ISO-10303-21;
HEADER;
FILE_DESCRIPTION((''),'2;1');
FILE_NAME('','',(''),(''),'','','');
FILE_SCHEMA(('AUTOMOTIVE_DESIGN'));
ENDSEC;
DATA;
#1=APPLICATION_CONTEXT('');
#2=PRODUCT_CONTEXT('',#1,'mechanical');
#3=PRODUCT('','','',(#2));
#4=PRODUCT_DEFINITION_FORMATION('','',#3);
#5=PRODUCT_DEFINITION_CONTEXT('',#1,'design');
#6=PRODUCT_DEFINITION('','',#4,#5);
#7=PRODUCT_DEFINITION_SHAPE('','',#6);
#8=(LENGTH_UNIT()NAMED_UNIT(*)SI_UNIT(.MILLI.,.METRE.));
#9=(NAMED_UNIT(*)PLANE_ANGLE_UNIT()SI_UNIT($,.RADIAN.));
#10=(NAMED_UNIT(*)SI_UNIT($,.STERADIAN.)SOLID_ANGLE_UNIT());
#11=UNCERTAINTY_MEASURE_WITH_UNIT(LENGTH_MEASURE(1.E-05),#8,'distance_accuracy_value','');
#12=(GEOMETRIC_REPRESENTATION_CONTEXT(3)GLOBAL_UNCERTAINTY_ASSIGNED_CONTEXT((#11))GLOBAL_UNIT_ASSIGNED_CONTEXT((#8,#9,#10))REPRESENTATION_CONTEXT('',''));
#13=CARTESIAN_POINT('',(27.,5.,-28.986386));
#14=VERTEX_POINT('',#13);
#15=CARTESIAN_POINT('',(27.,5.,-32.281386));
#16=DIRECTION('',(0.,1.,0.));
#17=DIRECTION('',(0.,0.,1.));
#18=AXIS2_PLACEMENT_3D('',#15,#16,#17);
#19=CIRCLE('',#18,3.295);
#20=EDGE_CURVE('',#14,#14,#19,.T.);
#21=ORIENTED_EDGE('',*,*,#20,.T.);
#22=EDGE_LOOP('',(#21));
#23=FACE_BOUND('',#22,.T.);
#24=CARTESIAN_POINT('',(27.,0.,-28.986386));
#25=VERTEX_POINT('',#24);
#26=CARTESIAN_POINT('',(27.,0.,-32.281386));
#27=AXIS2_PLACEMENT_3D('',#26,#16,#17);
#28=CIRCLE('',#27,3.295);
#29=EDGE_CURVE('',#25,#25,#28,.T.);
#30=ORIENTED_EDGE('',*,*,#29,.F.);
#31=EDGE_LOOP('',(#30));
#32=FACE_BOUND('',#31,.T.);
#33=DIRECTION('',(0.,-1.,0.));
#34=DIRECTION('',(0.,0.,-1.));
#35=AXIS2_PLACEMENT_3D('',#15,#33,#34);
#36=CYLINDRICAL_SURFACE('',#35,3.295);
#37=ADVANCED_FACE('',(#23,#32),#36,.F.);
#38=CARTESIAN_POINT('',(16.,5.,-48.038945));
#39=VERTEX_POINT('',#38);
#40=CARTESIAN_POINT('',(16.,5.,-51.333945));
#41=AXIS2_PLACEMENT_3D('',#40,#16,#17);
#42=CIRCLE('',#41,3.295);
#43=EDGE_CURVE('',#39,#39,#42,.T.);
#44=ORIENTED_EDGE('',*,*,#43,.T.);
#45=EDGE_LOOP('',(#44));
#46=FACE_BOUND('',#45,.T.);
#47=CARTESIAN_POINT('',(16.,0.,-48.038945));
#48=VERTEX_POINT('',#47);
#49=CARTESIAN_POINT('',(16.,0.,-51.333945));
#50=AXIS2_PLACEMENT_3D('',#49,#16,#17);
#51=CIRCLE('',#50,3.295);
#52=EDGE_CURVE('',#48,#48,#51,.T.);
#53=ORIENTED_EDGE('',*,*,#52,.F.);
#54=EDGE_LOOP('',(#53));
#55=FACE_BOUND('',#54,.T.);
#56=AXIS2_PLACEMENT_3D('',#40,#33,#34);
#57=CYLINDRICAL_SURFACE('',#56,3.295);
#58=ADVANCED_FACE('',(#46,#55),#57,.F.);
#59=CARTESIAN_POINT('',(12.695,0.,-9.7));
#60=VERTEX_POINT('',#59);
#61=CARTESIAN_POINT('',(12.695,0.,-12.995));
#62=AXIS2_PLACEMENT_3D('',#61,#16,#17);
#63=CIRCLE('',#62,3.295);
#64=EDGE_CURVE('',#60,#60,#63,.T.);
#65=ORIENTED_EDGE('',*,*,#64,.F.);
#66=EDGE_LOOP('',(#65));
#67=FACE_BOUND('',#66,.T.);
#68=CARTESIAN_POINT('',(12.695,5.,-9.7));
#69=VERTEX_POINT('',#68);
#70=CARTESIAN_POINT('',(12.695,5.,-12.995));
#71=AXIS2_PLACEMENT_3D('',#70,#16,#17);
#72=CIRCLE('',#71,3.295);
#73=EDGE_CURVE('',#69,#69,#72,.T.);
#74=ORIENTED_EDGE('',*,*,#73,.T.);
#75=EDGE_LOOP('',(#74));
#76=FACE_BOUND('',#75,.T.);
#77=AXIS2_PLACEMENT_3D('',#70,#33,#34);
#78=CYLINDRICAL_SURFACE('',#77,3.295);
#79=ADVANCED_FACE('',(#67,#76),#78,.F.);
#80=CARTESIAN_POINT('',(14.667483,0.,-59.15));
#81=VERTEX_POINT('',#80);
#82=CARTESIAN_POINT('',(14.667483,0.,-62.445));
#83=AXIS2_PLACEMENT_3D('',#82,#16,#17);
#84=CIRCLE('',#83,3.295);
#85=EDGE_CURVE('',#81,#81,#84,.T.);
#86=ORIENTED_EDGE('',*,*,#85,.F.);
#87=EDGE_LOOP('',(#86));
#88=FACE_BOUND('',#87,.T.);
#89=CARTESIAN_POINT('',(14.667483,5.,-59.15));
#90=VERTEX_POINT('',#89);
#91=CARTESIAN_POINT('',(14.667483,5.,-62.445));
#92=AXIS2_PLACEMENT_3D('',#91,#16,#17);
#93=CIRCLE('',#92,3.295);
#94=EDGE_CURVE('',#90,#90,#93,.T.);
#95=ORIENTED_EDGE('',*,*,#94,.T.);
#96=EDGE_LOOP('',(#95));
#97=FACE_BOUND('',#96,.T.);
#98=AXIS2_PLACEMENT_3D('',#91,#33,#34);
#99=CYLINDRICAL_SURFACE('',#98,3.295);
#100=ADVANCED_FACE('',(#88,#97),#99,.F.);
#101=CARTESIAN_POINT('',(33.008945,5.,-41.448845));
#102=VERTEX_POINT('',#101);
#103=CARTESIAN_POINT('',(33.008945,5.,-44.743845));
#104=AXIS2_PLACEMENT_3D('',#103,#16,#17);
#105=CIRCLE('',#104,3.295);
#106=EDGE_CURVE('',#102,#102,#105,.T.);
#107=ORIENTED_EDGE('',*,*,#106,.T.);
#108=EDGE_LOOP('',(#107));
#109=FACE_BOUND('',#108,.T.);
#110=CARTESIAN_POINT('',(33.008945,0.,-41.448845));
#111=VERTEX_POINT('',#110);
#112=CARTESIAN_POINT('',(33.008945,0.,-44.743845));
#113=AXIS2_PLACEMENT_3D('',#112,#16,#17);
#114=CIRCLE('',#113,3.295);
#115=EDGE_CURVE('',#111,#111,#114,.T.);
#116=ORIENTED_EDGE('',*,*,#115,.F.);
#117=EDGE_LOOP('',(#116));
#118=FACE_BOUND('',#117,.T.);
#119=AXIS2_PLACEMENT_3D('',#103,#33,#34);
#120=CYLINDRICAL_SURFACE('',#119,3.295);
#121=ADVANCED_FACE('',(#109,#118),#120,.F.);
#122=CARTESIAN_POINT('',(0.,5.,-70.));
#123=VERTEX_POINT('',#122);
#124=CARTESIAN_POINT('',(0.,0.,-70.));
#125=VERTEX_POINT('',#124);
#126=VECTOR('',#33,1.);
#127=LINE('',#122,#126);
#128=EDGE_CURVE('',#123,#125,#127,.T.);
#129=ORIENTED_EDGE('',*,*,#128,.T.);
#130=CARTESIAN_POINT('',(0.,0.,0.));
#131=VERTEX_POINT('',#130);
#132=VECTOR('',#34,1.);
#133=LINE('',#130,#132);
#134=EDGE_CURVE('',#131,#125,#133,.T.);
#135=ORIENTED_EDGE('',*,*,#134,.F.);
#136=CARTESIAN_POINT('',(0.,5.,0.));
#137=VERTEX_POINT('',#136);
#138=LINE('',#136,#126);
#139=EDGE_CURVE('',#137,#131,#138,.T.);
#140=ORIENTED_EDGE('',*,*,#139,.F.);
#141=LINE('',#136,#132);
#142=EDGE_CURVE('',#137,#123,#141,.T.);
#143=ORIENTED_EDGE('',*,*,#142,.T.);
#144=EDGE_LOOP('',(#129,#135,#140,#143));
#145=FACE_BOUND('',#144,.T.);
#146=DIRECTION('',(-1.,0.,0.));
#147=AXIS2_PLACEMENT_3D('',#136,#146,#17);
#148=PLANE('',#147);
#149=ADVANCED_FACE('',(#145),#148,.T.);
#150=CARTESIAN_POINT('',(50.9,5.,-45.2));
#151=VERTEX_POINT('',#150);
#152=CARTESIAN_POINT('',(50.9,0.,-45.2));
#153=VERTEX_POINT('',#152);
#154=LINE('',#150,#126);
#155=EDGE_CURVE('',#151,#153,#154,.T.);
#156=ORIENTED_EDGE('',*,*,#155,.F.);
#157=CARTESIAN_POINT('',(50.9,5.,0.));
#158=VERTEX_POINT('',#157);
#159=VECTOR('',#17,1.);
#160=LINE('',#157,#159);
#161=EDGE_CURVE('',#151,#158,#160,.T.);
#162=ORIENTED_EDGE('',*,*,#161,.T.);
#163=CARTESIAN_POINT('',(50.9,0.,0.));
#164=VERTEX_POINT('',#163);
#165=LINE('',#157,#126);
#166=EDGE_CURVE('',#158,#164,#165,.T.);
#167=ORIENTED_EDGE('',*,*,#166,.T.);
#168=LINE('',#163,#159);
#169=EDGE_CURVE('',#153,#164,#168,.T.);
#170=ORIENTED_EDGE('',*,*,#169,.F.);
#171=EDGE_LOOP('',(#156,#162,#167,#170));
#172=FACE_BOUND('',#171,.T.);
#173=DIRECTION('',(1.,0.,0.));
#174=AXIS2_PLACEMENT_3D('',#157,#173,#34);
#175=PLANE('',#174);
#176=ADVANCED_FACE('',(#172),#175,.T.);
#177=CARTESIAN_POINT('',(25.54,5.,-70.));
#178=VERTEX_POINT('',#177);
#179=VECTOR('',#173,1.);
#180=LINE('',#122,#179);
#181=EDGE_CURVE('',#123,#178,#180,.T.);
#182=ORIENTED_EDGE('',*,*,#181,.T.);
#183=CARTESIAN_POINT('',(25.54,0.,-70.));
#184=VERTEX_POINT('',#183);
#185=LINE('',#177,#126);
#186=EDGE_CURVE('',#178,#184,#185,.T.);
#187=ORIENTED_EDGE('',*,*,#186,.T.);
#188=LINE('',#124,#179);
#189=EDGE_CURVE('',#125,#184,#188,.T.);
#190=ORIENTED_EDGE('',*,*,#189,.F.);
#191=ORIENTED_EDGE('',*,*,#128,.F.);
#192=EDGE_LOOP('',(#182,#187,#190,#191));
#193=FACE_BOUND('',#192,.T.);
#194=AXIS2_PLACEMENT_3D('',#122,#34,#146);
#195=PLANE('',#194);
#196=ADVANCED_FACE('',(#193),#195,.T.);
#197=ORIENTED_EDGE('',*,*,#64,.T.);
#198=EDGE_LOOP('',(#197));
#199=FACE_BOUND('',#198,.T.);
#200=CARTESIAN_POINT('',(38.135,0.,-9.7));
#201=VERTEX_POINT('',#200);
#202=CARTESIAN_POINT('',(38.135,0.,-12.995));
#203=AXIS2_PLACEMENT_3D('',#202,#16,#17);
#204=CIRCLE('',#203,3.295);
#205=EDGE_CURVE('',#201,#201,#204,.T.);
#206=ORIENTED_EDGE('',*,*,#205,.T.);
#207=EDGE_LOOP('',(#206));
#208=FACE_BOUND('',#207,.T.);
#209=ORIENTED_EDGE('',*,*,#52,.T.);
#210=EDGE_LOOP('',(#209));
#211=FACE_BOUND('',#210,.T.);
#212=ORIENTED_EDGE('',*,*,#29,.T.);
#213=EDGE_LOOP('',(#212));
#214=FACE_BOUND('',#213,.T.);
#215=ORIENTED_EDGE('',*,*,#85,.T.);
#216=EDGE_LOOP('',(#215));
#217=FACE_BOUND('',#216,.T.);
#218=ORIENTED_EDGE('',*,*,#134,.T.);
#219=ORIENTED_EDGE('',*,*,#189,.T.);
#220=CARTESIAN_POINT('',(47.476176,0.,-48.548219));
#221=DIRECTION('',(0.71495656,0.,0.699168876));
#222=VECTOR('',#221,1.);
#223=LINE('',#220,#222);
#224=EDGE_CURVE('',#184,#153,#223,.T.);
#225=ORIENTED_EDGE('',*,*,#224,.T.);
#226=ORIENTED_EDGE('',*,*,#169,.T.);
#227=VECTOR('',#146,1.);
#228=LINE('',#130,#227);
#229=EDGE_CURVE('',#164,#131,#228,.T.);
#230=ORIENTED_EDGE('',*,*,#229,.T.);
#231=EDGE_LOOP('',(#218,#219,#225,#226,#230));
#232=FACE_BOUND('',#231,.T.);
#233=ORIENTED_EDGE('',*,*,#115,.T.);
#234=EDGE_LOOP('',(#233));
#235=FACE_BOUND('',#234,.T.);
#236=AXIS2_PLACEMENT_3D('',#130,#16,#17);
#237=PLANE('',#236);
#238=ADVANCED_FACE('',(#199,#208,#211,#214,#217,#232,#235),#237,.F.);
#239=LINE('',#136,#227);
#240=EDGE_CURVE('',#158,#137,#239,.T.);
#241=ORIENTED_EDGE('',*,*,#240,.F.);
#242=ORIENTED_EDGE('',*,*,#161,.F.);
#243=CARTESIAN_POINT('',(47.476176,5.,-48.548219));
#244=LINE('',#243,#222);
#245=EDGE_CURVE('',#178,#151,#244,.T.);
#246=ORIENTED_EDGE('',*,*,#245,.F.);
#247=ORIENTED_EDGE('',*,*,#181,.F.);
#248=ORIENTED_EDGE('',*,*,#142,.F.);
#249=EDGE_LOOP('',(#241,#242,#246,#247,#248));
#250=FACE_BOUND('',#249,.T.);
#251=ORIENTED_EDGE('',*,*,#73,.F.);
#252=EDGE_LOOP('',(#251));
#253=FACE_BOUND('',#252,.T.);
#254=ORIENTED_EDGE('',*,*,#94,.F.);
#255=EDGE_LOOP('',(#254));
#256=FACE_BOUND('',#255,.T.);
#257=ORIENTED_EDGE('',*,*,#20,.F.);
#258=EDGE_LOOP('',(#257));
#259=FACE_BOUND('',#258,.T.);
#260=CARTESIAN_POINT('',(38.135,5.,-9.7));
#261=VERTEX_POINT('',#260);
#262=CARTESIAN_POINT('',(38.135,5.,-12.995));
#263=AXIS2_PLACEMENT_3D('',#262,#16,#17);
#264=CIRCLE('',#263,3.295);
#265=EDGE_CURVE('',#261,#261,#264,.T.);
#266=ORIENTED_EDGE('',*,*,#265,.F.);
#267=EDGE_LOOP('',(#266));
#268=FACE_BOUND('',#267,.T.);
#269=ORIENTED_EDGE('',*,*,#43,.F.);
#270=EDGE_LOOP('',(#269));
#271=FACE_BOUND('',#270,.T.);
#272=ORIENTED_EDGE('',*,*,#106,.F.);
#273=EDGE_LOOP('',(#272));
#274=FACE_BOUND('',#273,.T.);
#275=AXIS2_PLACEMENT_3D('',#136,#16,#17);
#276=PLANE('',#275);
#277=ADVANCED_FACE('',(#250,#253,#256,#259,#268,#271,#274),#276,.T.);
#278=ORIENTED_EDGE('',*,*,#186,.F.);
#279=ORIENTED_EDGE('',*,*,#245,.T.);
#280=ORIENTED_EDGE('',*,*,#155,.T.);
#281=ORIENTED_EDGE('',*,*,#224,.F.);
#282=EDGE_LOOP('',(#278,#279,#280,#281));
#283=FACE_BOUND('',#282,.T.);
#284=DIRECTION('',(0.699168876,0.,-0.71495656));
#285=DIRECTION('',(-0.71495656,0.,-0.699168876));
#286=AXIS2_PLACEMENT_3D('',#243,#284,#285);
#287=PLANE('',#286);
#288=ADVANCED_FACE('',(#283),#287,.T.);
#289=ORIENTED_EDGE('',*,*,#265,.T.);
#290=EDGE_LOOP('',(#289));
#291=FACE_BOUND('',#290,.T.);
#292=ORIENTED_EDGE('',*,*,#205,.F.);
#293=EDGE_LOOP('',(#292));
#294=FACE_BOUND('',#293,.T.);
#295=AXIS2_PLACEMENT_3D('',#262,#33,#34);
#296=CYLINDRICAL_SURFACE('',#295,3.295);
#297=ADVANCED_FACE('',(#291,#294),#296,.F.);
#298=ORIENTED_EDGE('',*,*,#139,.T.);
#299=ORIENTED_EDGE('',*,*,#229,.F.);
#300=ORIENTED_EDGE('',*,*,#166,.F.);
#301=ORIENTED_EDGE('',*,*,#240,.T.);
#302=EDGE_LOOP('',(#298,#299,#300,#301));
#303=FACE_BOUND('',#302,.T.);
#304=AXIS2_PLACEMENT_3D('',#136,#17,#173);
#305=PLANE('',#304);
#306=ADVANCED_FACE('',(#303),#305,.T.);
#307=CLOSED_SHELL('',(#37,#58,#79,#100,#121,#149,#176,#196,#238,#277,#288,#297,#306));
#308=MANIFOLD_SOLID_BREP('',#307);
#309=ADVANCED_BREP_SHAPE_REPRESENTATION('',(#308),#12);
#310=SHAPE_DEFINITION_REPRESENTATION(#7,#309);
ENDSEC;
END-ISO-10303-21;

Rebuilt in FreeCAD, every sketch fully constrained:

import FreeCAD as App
import Part
import Sketcher
Q = App.Units.Quantity


def add_polygon(sketch, points):
    """Adds a closed chain of lines whose ends are joined by coincident constraints."""
    first, n = sketch.GeometryCount, len(points)
    for a, b in zip(points, points[1:] + points[:1]):
        sketch.addGeometry(Part.LineSegment(App.Vector(*a, 0), App.Vector(*b, 0)), False)
    for i in range(n):
        sketch.addConstraint(Sketcher.Constraint("Coincident", first + i, 2, first + (i + 1) % n, 1))

doc = App.newDocument("Part")
body = doc.addObject("PartDesign::Body", "Body")

# Sketch on XZ plane
sketch1 = body.newObject("Sketcher::SketchObject", "Sketch")
sketch1.AttachmentSupport = (doc.getObject("XZ_Plane"), [""])
sketch1.MapMode = "FlatFace"
add_polygon(sketch1, [(0, -70), (0, 0), (50.9, 0), (50.9, -45.2), (25.5, -70)])  # lines 0-4
sketch1.addGeometry(Part.Circle(App.Vector(38.1, -13, 0), App.Vector(0, 0, 1), 3.3), False)  # 5
sketch1.addGeometry(Part.Circle(App.Vector(27, -32.3, 0), App.Vector(0, 0, 1), 3.3), False)  # 6
sketch1.addGeometry(Part.Circle(App.Vector(12.7, -13, 0), App.Vector(0, 0, 1), 3.3), False)  # 7
sketch1.addGeometry(Part.Circle(App.Vector(33, -44.7, 0), App.Vector(0, 0, 1), 3.3), False)  # 8
sketch1.addGeometry(Part.Circle(App.Vector(16, -51.3, 0), App.Vector(0, 0, 1), 3.3), False)  # 9
sketch1.addGeometry(Part.Circle(App.Vector(14.7, -62.4, 0), App.Vector(0, 0, 1), 3.3), False)  # 10
sketch1.addConstraint([
    Sketcher.Constraint("Vertical", 0),
    Sketcher.Constraint("Horizontal", 1),
    Sketcher.Constraint("Vertical", 2),
    Sketcher.Constraint("Horizontal", 4),
    Sketcher.Constraint("Coincident", 0, 2, -1, 1),
    Sketcher.Constraint("Equal", 5, 6),
    Sketcher.Constraint("Equal", 6, 7),
    Sketcher.Constraint("Equal", 7, 8),
    Sketcher.Constraint("Equal", 8, 9),
    Sketcher.Constraint("Equal", 9, 10),
    Sketcher.Constraint("Horizontal", 5, 3, 7, 3),
    Sketcher.Constraint("Diameter", 5, Q("6.59 mm")),
    Sketcher.Constraint("DistanceY", 0, 1, 0, 2, Q("70 mm")),
    Sketcher.Constraint("DistanceX", 1, 1, 1, 2, Q("50.9 mm")),
    Sketcher.Constraint("DistanceY", 2, 2, 2, 1, Q("45.2 mm")),
    Sketcher.Constraint("DistanceX", -1, 1, 6, 3, Q("27 mm")),
    Sketcher.Constraint("DistanceX", -1, 1, 9, 3, Q("16 mm")),
    Sketcher.Constraint("DistanceX", 4, 2, 4, 1, Q("25.54 mm")),
    Sketcher.Constraint("DistanceX", 7, 3, 5, 3, Q("25.44 mm")),
    Sketcher.Constraint("DistanceY", 10, 3, 7, 3, Q("49.45 mm")),
    Sketcher.Constraint("DistanceX", -1, 1, 5, 3, Q("38.135 mm")),
    Sketcher.Constraint("DistanceY", 5, 3, -1, 1, Q("12.995 mm")),
    Sketcher.Constraint("DistanceY", 9, 3, 8, 3, Q("6.5901 mm")),
    Sketcher.Constraint("DistanceY", 8, 3, 6, 3, Q("12.462459 mm")),
    Sketcher.Constraint("DistanceX", 10, 3, 8, 3, Q("18.341462 mm")),
    Sketcher.Constraint("DistanceY", 6, 3, -1, 1, Q("32.281386 mm")),
    Sketcher.Constraint("DistanceX", -1, 1, 8, 3, Q("33.008945 mm")),
])
pad1 = body.newObject("PartDesign::Pad", "Pad")
pad1.Profile = sketch1
pad1.Length = 5
pad1.Reversed = True

doc.recompute()
